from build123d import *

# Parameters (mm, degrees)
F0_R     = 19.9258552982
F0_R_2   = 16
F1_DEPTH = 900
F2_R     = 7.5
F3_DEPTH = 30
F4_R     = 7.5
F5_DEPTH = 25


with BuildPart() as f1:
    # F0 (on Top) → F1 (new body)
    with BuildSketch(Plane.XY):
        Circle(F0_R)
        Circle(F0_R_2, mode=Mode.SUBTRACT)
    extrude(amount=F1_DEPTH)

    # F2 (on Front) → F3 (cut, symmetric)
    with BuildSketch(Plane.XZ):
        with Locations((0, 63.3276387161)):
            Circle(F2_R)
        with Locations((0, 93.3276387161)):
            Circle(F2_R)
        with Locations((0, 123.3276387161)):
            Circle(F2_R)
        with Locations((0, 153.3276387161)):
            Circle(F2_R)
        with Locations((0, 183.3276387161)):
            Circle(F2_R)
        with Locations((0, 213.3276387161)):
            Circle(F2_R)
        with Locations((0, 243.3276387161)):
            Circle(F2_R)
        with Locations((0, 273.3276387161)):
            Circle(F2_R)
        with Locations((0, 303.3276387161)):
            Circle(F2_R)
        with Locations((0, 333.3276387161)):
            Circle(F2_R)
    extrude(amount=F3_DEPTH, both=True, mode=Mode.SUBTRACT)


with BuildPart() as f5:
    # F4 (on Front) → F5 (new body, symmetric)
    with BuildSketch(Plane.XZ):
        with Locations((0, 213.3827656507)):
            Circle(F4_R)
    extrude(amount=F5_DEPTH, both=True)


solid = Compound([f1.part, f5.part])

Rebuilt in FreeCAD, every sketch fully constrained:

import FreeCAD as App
import Part
import Sketcher

V = App.Vector
Q = App.Units.Quantity

doc = App.newDocument("Part")
body = doc.addObject("PartDesign::Body", "Body")

# Sketch on XY plane
sketch1 = doc.addObject("Sketcher::SketchObject", "Sketch")
body.addObject(sketch1)
sketch1.AttachmentSupport = (doc.XY_Plane, [""])
sketch1.MapMode = "FlatFace"
sketch1.addGeometry([
    Part.Circle(V(0, 0, 0), V(0, 0, 1), 19.925855),
    Part.Circle(V(0, 0, 0), V(0, 0, 1), 16),
], False)
sketch1.addConstraint([
    Sketcher.Constraint("Coincident", 0, 3, -1, 1),
    Sketcher.Constraint("Coincident", 1, 3, -1, 1),
    Sketcher.Constraint("Diameter", 1, Q("32 mm")),
    Sketcher.Constraint("Diameter", 0, Q("39.851711 mm")),
])
pad1 = doc.addObject("PartDesign::Pad", "Pad")
body.addObject(pad1)
pad1.Profile = sketch1
pad1.Length = 900

# Sketch on XZ plane
sketch2 = doc.addObject("Sketcher::SketchObject", "Sketch001")
body.addObject(sketch2)
sketch2.AttachmentSupport = (doc.XZ_Plane, [""])
sketch2.MapMode = "FlatFace"
sketch2.addGeometry([
    Part.Circle(V(0, 63.327639, 0), V(0, 0, 1), 7.5),  # 0
    Part.Circle(V(0, 93.327639, 0), V(0, 0, 1), 7.5),  # 1
    Part.Circle(V(0, 123.327639, 0), V(0, 0, 1), 7.5),  # 2
    Part.Circle(V(0, 153.327639, 0), V(0, 0, 1), 7.5),  # 3
    Part.Circle(V(0, 183.327639, 0), V(0, 0, 1), 7.5),  # 4
    Part.Circle(V(0, 213.327639, 0), V(0, 0, 1), 7.5),  # 5
    Part.Circle(V(0, 243.327639, 0), V(0, 0, 1), 7.5),  # 6
    Part.Circle(V(0, 273.327639, 0), V(0, 0, 1), 7.5),  # 7
    Part.Circle(V(0, 303.327639, 0), V(0, 0, 1), 7.5),  # 8
    Part.Circle(V(0, 333.327639, 0), V(0, 0, 1), 7.5),  # 9
], False)
sketch2.addConstraint([
    Sketcher.Constraint("Equal", 0, 1),
    Sketcher.Constraint("Equal", 1, 2),
    Sketcher.Constraint("Equal", 2, 3),
    Sketcher.Constraint("Equal", 3, 4),
    Sketcher.Constraint("Equal", 4, 5),
    Sketcher.Constraint("Equal", 5, 6),
    Sketcher.Constraint("Equal", 6, 7),
    Sketcher.Constraint("Equal", 7, 8),
    Sketcher.Constraint("Equal", 8, 9),
    Sketcher.Constraint("PointOnObject", 0, 3, -2),
    Sketcher.Constraint("PointOnObject", 1, 3, -2),
    Sketcher.Constraint("PointOnObject", 2, 3, -2),
    Sketcher.Constraint("PointOnObject", 3, 3, -2),
    Sketcher.Constraint("PointOnObject", 4, 3, -2),
    Sketcher.Constraint("PointOnObject", 5, 3, -2),
    Sketcher.Constraint("PointOnObject", 6, 3, -2),
    Sketcher.Constraint("PointOnObject", 7, 3, -2),
    Sketcher.Constraint("PointOnObject", 8, 3, -2),
    Sketcher.Constraint("PointOnObject", 9, 3, -2),
    Sketcher.Constraint("Diameter", 0, Q("15 mm")),
    Sketcher.Constraint("DistanceY", 0, 3, 1, 3, Q("30 mm")),
    Sketcher.Constraint("DistanceY", 1, 3, 2, 3, Q("30 mm")),
    Sketcher.Constraint("DistanceY", 2, 3, 3, 3, Q("30 mm")),
    Sketcher.Constraint("DistanceY", 3, 3, 4, 3, Q("30 mm")),
    Sketcher.Constraint("DistanceY", 4, 3, 5, 3, Q("30 mm")),
    Sketcher.Constraint("DistanceY", 5, 3, 6, 3, Q("30 mm")),
    Sketcher.Constraint("DistanceY", 6, 3, 7, 3, Q("30 mm")),
    Sketcher.Constraint("DistanceY", 7, 3, 8, 3, Q("30 mm")),
    Sketcher.Constraint("DistanceY", 8, 3, 9, 3, Q("30 mm")),
    Sketcher.Constraint("DistanceY", -1, 1, 0, 3, Q("63.327639 mm")),
])
pocket1 = doc.addObject("PartDesign::Pocket", "Pocket")
body.addObject(pocket1)
pocket1.Profile = sketch2
pocket1.Length = 60
pocket1.Midplane = True
body2 = doc.addObject("PartDesign::Body", "Body001")

# Sketch on XZ plane
sketch3 = doc.addObject("Sketcher::SketchObject", "Sketch002")
body2.addObject(sketch3)
sketch3.AttachmentSupport = (doc.getObject("XZ_Plane001"), [""])
sketch3.MapMode = "FlatFace"
sketch3.addGeometry(Part.Circle(V(0, 213.382766, 0), V(0, 0, 1), 7.5), False)
sketch3.addConstraint([
    Sketcher.Constraint("PointOnObject", 0, 3, -2),
    Sketcher.Constraint("Diameter", 0, Q("15 mm")),
    Sketcher.Constraint("DistanceY", -1, 1, 0, 3, Q("213.382766 mm")),
])
pad2 = doc.addObject("PartDesign::Pad", "Pad001")
body2.addObject(pad2)
pad2.Profile = sketch3
pad2.Length = 50
pad2.Midplane = True

doc.recompute()
